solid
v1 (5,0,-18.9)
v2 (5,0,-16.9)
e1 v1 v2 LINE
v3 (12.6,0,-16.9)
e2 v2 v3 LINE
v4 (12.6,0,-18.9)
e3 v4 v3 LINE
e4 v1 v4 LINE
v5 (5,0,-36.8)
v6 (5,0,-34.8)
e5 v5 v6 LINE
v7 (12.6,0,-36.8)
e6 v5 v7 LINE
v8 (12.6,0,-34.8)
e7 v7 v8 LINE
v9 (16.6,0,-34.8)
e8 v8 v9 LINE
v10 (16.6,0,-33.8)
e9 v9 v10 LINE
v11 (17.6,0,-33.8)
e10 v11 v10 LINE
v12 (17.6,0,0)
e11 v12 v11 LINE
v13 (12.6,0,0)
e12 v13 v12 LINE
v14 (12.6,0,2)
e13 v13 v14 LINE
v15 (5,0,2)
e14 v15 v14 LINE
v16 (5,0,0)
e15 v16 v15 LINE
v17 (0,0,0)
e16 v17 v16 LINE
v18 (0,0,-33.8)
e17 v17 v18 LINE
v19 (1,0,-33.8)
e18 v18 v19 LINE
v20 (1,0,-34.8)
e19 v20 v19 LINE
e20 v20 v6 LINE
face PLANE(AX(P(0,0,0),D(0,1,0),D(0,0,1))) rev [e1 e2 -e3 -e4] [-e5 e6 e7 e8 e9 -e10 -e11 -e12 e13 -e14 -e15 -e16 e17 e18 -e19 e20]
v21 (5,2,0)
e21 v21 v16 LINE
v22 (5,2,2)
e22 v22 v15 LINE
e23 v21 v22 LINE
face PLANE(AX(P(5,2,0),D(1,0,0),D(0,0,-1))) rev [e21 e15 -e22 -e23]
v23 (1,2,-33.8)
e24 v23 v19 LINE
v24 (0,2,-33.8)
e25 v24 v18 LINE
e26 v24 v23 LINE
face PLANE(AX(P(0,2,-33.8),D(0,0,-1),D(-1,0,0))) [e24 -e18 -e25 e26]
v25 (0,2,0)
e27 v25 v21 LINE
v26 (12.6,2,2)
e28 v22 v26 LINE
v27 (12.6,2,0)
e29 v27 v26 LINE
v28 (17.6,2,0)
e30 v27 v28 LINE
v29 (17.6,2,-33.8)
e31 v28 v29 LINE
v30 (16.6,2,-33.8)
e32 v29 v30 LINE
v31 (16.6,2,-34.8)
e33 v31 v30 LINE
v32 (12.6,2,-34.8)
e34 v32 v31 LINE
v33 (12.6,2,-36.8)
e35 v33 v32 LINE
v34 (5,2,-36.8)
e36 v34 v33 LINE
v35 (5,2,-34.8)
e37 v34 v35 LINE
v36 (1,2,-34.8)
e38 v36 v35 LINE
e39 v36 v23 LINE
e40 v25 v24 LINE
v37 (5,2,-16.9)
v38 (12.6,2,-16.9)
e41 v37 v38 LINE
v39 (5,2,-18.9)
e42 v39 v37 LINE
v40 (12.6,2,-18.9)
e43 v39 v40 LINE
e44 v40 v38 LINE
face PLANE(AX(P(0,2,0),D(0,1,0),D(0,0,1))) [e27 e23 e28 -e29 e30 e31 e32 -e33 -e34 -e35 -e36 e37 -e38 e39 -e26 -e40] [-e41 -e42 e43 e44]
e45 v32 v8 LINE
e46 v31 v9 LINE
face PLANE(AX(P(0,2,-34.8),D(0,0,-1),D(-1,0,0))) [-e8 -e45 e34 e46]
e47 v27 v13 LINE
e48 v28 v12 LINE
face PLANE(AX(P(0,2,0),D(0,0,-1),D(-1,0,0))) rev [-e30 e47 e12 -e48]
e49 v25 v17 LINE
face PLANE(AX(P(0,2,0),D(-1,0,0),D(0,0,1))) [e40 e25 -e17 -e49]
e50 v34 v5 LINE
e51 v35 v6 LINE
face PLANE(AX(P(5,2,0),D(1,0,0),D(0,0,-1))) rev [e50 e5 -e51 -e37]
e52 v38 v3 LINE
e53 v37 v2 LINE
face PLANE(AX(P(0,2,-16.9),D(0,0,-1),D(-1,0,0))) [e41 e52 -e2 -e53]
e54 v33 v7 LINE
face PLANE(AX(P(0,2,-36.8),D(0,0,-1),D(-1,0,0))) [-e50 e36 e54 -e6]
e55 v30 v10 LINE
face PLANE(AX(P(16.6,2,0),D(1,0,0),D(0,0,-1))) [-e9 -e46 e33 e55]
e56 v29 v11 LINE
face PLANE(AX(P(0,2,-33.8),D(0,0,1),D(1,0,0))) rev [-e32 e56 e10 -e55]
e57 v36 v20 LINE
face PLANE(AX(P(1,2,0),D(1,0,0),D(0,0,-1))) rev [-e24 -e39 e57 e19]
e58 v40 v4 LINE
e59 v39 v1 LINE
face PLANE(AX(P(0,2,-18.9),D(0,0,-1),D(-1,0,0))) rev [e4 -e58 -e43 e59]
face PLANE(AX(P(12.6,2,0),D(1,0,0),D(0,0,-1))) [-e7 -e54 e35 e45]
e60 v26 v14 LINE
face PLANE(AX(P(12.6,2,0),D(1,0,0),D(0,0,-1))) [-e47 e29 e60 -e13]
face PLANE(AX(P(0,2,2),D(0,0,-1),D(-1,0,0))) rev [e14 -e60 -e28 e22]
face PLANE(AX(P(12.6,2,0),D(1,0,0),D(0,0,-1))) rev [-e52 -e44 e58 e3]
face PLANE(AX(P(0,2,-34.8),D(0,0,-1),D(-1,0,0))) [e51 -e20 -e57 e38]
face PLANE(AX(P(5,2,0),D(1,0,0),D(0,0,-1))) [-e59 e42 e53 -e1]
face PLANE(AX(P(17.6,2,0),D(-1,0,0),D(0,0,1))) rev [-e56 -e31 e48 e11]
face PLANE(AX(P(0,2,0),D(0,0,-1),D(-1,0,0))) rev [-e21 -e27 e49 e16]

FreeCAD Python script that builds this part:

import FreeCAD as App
import Part
import Sketcher


def add_polygon(sketch, points):
    """Adds a closed chain of lines whose ends are joined by coincident constraints."""
    first, n = sketch.GeometryCount, len(points)
    for a, b in zip(points, points[1:] + points[:1]):
        sketch.addGeometry(Part.LineSegment(App.Vector(*a, 0), App.Vector(*b, 0)), False)
    for i in range(n):
        sketch.addConstraint(Sketcher.Constraint("Coincident", first + i, 2, first + (i + 1) % n, 1))

doc = App.newDocument("Part")
body = doc.addObject("PartDesign::Body", "Body")

# Sketch on XZ plane
sketch1 = body.newObject("Sketcher::SketchObject", "Sketch")
sketch1.AttachmentSupport = (doc.getObject("XZ_Plane"), [""])
sketch1.MapMode = "FlatFace"
add_polygon(sketch1, [(0, -33.8), (0, 0), (5, 0), (5, 2), (12.6, 2), (12.6, 0), (17.6, 0), (17.6, -33.8), (16.6, -33.8), (16.6, -34.8), (12.6, -34.8), (12.6, -36.8), (5, -36.8), (5, -34.8), (1, -34.8), (1, -33.8)])  # lines 0-15
add_polygon(sketch1, [(12.6, -16.9), (5, -16.9), (5, -18.9), (12.6, -18.9)])  # lines 16-19
sketch1.addConstraint(Sketcher.Constraint("Vertical", 0))
sketch1.addConstraint(Sketcher.Constraint("Horizontal", 1))
sketch1.addConstraint(Sketcher.Constraint("Vertical", 2))
sketch1.addConstraint(Sketcher.Constraint("Horizontal", 3))
sketch1.addConstraint(Sketcher.Constraint("Vertical", 4))
sketch1.addConstraint(Sketcher.Constraint("Horizontal", 5))
sketch1.addConstraint(Sketcher.Constraint("Vertical", 6))
sketch1.addConstraint(Sketcher.Constraint("Horizontal", 7))
sketch1.addConstraint(Sketcher.Constraint("Vertical", 8))
sketch1.addConstraint(Sketcher.Constraint("Horizontal", 9))
sketch1.addConstraint(Sketcher.Constraint("Vertical", 10))
sketch1.addConstraint(Sketcher.Constraint("Horizontal", 11))
sketch1.addConstraint(Sketcher.Constraint("Vertical", 12))
sketch1.addConstraint(Sketcher.Constraint("Horizontal", 13))
sketch1.addConstraint(Sketcher.Constraint("Vertical", 14))
sketch1.addConstraint(Sketcher.Constraint("Horizontal", 15))
sketch1.addConstraint(Sketcher.Constraint("Horizontal", 16))
sketch1.addConstraint(Sketcher.Constraint("Vertical", 17))
sketch1.addConstraint(Sketcher.Constraint("Horizontal", 18))
sketch1.addConstraint(Sketcher.Constraint("Vertical", 19))
sketch1.addConstraint(Sketcher.Constraint("Coincident", 0, 2, -1, 1))
sketch1.addConstraint(Sketcher.Constraint("PointOnObject", 4, 2, -1))
sketch1.addConstraint(Sketcher.Constraint("Horizontal", 9, 2, 12, 2))
sketch1.addConstraint(Sketcher.Constraint("Horizontal", 7, 2, 14, 2))
sketch1.addConstraint(Sketcher.Constraint("Vertical", 4, 2, 9, 2))
sketch1.addConstraint(Sketcher.Constraint("Vertical", 2, 2, 11, 2))
sketch1.addConstraint(Sketcher.Constraint("Vertical", 12, 2, 16, 2))
sketch1.addConstraint(Sketcher.Constraint("Vertical", 10, 2, 18, 2))
sketch1.addConstraint(Sketcher.Constraint("Equal", 1, 5))
sketch1.addConstraint(Sketcher.Constraint("Equal", 9, 13))
sketch1.addConstraint(Sketcher.Constraint("Equal", 15, 8))
sketch1.addConstraint(Sketcher.Constraint("Equal", 4, 10))
sketch1.addConstraint(Sketcher.Constraint("Equal", 12, 17))
sketch1.addConstraint(Sketcher.Constraint("DistanceX", 1, 1, 1, 2, 5.0))
sketch1.addConstraint(Sketcher.Constraint("DistanceX", 7, 2, 7, 1, 1.0))
sketch1.addConstraint(Sketcher.Constraint("DistanceY", 2, 1, 2, 2, 2.0))
sketch1.addConstraint(Sketcher.Constraint("DistanceX", 3, 1, 3, 2, 7.6))
sketch1.addConstraint(Sketcher.Constraint("DistanceY", 0, 1, 0, 2, 33.8))
sketch1.addConstraint(Sketcher.Constraint("DistanceY", 16, 2, -1, 1, 16.9))
pad1 = body.newObject("PartDesign::Pad", "Pad")
pad1.Profile = sketch1
pad1.Length = 2
pad1.Reversed = True

doc.recompute()
